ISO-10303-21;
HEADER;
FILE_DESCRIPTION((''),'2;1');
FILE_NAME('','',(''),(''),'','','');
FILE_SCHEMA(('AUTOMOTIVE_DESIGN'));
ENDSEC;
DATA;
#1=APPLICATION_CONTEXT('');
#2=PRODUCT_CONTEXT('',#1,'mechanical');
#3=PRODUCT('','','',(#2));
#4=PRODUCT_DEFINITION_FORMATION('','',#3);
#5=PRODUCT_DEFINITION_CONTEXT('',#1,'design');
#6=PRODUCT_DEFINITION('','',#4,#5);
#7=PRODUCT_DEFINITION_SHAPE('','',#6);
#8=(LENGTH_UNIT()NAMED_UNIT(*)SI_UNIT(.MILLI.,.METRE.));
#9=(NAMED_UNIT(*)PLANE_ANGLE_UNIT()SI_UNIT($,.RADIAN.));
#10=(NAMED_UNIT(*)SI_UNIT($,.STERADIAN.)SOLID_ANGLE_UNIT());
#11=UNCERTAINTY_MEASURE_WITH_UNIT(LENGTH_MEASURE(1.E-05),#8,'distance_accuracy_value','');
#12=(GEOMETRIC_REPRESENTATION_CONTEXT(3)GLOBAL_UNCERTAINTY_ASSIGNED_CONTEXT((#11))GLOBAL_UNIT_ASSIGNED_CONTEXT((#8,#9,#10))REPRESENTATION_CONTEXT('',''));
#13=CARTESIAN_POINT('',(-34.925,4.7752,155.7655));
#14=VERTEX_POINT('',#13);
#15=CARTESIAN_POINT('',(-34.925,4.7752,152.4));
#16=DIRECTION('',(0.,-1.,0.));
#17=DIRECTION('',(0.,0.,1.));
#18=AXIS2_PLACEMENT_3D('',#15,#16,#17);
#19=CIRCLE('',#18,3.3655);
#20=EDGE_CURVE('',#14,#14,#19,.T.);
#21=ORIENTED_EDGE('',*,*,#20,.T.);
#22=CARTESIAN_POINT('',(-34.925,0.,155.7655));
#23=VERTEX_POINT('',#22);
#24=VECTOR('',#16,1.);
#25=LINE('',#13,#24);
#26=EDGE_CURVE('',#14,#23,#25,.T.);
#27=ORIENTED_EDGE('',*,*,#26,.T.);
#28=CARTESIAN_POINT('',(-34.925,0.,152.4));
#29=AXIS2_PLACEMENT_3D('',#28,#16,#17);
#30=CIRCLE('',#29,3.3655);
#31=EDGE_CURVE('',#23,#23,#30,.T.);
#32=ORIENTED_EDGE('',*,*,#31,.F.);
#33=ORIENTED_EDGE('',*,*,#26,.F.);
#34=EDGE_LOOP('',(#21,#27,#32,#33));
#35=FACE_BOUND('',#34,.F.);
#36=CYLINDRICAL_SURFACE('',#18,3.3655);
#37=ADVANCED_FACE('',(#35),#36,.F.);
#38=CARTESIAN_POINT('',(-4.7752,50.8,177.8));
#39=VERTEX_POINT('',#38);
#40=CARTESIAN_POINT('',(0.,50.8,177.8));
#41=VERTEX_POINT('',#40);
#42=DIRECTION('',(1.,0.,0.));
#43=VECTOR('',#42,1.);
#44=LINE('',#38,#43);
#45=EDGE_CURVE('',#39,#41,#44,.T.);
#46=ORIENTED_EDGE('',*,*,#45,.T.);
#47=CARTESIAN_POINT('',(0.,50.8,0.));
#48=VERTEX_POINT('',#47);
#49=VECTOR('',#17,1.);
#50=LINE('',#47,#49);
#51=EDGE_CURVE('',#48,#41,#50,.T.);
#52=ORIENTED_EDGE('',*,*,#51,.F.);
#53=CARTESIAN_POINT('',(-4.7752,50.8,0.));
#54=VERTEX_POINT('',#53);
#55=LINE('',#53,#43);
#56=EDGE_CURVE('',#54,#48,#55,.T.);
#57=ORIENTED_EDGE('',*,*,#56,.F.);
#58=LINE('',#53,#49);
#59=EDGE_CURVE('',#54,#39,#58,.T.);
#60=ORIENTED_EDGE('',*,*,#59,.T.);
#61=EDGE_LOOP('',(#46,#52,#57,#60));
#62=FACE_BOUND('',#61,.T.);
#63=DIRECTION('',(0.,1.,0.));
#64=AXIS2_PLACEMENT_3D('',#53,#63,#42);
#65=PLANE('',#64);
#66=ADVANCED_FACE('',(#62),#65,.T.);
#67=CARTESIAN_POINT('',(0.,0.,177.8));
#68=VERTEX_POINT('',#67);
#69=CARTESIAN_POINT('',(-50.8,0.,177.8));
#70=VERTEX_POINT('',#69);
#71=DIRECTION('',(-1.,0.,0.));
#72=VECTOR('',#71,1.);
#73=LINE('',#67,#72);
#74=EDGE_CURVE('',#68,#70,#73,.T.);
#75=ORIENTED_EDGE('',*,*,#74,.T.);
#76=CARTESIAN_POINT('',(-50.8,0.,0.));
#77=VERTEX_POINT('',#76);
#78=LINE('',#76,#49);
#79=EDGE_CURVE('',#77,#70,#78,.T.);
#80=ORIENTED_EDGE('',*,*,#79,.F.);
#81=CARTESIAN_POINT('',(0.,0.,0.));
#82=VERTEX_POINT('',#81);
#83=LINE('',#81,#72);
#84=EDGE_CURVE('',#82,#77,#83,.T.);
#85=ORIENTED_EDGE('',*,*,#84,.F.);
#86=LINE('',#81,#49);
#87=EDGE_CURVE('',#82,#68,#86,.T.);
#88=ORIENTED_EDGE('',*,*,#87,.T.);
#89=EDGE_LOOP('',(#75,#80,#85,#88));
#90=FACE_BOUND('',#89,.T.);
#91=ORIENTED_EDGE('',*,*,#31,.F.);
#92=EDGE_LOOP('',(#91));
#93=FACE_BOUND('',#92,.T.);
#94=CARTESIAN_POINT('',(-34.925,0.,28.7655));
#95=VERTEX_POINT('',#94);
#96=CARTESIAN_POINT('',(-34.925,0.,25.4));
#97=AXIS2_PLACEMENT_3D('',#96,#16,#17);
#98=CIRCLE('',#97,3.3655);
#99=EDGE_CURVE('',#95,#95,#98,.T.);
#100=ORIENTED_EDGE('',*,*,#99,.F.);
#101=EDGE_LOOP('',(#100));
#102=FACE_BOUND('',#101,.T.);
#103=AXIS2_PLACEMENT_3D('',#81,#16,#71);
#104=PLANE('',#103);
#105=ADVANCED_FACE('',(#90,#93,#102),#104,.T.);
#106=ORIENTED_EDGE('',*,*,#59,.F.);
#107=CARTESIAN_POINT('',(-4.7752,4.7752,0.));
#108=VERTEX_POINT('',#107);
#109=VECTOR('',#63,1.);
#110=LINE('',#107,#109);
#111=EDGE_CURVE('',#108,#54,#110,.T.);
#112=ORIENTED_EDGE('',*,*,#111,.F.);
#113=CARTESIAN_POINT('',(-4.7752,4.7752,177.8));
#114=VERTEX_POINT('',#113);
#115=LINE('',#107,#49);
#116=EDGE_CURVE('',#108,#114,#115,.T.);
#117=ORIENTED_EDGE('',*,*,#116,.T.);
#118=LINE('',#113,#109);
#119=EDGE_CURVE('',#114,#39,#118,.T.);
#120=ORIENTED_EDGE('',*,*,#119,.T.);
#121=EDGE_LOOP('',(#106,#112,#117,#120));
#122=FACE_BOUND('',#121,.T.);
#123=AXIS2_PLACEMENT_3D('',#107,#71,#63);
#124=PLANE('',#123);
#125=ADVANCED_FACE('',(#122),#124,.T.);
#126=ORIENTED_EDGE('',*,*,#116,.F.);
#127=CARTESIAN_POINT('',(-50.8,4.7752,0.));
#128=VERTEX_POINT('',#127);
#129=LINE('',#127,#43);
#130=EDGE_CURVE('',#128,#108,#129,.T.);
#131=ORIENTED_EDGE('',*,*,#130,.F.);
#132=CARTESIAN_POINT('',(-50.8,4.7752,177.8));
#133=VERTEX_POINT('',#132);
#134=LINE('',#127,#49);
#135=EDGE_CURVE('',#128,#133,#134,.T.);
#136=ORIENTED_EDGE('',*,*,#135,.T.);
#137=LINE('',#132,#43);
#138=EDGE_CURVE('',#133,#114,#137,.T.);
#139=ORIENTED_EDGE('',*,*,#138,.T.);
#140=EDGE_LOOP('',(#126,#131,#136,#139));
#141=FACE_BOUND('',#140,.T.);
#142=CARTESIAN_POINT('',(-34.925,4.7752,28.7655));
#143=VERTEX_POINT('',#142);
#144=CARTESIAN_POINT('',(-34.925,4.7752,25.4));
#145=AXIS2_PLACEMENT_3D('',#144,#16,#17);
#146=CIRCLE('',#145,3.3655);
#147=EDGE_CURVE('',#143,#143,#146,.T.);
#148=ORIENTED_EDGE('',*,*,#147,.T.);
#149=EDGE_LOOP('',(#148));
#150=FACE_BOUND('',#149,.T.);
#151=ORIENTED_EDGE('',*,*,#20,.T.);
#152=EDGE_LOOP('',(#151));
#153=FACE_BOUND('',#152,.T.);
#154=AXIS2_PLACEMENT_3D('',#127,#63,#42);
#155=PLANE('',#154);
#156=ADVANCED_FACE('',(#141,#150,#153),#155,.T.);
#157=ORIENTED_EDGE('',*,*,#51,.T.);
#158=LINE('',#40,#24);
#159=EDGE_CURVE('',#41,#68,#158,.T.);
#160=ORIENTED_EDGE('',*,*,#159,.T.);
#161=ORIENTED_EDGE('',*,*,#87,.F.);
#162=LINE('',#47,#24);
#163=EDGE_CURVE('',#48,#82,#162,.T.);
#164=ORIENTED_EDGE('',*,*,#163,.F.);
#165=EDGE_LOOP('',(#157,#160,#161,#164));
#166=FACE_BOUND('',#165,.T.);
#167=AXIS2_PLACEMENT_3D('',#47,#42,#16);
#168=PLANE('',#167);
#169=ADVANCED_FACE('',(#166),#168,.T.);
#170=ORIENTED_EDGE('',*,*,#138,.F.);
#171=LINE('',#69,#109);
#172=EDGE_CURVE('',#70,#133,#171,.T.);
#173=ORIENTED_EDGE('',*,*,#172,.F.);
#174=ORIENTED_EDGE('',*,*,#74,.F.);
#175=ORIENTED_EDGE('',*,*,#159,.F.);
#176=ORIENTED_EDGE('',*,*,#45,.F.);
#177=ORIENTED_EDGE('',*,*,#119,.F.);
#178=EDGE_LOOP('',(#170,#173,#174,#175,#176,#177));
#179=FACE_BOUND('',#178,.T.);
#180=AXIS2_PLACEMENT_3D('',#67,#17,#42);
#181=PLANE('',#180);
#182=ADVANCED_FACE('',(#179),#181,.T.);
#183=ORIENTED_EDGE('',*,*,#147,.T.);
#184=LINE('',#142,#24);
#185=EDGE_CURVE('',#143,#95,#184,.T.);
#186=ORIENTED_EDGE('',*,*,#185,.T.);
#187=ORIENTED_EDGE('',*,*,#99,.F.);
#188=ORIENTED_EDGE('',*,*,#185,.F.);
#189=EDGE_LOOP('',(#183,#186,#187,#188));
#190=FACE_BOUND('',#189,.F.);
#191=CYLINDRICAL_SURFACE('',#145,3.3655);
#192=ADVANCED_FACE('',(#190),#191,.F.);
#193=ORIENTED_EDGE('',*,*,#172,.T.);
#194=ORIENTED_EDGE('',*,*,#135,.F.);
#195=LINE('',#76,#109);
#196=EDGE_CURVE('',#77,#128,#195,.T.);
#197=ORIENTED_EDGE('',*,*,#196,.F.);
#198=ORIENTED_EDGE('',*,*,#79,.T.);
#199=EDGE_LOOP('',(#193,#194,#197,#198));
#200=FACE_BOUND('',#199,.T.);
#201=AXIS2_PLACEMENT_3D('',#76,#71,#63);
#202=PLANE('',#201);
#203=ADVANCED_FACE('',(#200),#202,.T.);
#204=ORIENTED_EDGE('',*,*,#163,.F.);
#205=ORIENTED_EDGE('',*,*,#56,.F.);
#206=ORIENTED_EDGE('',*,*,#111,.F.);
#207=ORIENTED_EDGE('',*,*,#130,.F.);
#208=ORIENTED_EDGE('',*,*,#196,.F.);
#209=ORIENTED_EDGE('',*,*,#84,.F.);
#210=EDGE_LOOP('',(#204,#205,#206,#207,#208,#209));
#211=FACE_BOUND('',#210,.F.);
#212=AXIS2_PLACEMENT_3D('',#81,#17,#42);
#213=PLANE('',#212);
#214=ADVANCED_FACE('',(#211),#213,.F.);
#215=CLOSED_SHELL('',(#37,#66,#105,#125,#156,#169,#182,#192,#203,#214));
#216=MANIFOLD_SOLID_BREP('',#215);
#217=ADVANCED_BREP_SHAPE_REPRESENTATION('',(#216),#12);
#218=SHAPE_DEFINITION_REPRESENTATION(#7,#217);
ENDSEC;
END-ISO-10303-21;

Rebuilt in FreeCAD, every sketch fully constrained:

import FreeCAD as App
import Part
import Sketcher

V = App.Vector
Q = App.Units.Quantity


def add_polygon(sketch, points):
    """Adds a closed chain of lines whose ends are joined by coincident constraints."""
    first, n = sketch.GeometryCount, len(points)
    for a, b in zip(points, points[1:] + points[:1]):
        sketch.addGeometry(Part.LineSegment(App.Vector(*a, 0), App.Vector(*b, 0)), False)
    for i in range(n):
        sketch.addConstraint(Sketcher.Constraint("Coincident", first + i, 2, first + (i + 1) % n, 1))

doc = App.newDocument("Part")
body = doc.addObject("PartDesign::Body", "Body")

sketch1 = doc.addObject("Sketcher::SketchObject", "Sketch")
body.addObject(sketch1)
sketch1.AttachmentSupport = (doc.XY_Plane, [""])
sketch1.MapMode = "FlatFace"
add_polygon(sketch1, [(0, 0), (0, 50.8), (-4.7752, 50.8), (-4.7752, 4.7752), (-50.8, 4.7752), (-50.8, 0)])
sketch1.addConstraint([
    Sketcher.Constraint("Vertical", 0),
    Sketcher.Constraint("Horizontal", 1),
    Sketcher.Constraint("Vertical", 2),
    Sketcher.Constraint("Horizontal", 3),
    Sketcher.Constraint("Vertical", 4),
    Sketcher.Constraint("Horizontal", 5),
    Sketcher.Constraint("Coincident", 5, 2, -1, 1),
    Sketcher.Constraint("Equal", 5, 0),
    Sketcher.Constraint("Equal", 3, 2),
    Sketcher.Constraint("DistanceX", 5, 1, 5, 2, Q("2 in")),
    Sketcher.Constraint("DistanceX", 1, 2, 1, 1, Q("0.188 in")),
])
pad1 = doc.addObject("PartDesign::Pad", "Pad")
body.addObject(pad1)
pad1.Profile = sketch1
pad1.Length = Q("7 in")

sketch2 = doc.addObject("Sketcher::SketchObject", "Sketch001")
body.addObject(sketch2)
sketch2.AttachmentSupport = (doc.XZ_Plane, [""])
sketch2.MapMode = "FlatFace"
sketch2.AttachmentOffset = App.Placement(V(0, 0, -0.188 * 25.4), App.Rotation())
sketch2.addGeometry(Part.Circle(V(-34.925, 25.4, 0), V(0, 0, 1), 3.3655), False)
sketch2.addConstraint([
    Sketcher.Constraint("Diameter", 0, Q("0.265 in")),
    Sketcher.Constraint("DistanceY", -1, 1, 0, 3, Q("1 in")),
    Sketcher.Constraint("DistanceX", 0, 3, -1, 1, Q("1.375 in")),
])
doc.recompute()
hole = doc.addObject("PartDesign::Hole", "Hole")
body.addObject(hole)
hole.Profile = sketch2
hole.ThreadType = "None"
hole.Diameter = Q("0.265 in")
hole.DepthType = "Dimension"
hole.Depth = Q("1 in")
hole.DrillPoint = "Angled"
hole.DrillPointAngle = 118
hole.Reversed = True

sketch3 = doc.addObject("Sketcher::SketchObject", "Sketch002")
body.addObject(sketch3)
sketch3.AttachmentSupport = (doc.XZ_Plane, [""])
sketch3.MapMode = "FlatFace"
sketch3.AttachmentOffset = App.Placement(V(0, 0, -0.188 * 25.4), App.Rotation())
sketch3.addGeometry(Part.Circle(V(-34.925, 152.4, 0), V(0, 0, 1), 3.3655), False)
sketch3.addConstraint([
    Sketcher.Constraint("Diameter", 0, Q("0.265 in")),
    Sketcher.Constraint("DistanceY", -1, 1, 0, 3, Q("6 in")),
    Sketcher.Constraint("DistanceX", 0, 3, -1, 1, Q("1.375 in")),
])
doc.recompute()
hole2 = doc.addObject("PartDesign::Hole", "Hole001")
body.addObject(hole2)
hole2.Profile = sketch3
hole2.ThreadType = "None"
hole2.Diameter = Q("0.265 in")
hole2.DepthType = "Dimension"
hole2.Depth = Q("1 in")
hole2.DrillPoint = "Angled"
hole2.DrillPointAngle = 118
hole2.Reversed = True

doc.recompute()
